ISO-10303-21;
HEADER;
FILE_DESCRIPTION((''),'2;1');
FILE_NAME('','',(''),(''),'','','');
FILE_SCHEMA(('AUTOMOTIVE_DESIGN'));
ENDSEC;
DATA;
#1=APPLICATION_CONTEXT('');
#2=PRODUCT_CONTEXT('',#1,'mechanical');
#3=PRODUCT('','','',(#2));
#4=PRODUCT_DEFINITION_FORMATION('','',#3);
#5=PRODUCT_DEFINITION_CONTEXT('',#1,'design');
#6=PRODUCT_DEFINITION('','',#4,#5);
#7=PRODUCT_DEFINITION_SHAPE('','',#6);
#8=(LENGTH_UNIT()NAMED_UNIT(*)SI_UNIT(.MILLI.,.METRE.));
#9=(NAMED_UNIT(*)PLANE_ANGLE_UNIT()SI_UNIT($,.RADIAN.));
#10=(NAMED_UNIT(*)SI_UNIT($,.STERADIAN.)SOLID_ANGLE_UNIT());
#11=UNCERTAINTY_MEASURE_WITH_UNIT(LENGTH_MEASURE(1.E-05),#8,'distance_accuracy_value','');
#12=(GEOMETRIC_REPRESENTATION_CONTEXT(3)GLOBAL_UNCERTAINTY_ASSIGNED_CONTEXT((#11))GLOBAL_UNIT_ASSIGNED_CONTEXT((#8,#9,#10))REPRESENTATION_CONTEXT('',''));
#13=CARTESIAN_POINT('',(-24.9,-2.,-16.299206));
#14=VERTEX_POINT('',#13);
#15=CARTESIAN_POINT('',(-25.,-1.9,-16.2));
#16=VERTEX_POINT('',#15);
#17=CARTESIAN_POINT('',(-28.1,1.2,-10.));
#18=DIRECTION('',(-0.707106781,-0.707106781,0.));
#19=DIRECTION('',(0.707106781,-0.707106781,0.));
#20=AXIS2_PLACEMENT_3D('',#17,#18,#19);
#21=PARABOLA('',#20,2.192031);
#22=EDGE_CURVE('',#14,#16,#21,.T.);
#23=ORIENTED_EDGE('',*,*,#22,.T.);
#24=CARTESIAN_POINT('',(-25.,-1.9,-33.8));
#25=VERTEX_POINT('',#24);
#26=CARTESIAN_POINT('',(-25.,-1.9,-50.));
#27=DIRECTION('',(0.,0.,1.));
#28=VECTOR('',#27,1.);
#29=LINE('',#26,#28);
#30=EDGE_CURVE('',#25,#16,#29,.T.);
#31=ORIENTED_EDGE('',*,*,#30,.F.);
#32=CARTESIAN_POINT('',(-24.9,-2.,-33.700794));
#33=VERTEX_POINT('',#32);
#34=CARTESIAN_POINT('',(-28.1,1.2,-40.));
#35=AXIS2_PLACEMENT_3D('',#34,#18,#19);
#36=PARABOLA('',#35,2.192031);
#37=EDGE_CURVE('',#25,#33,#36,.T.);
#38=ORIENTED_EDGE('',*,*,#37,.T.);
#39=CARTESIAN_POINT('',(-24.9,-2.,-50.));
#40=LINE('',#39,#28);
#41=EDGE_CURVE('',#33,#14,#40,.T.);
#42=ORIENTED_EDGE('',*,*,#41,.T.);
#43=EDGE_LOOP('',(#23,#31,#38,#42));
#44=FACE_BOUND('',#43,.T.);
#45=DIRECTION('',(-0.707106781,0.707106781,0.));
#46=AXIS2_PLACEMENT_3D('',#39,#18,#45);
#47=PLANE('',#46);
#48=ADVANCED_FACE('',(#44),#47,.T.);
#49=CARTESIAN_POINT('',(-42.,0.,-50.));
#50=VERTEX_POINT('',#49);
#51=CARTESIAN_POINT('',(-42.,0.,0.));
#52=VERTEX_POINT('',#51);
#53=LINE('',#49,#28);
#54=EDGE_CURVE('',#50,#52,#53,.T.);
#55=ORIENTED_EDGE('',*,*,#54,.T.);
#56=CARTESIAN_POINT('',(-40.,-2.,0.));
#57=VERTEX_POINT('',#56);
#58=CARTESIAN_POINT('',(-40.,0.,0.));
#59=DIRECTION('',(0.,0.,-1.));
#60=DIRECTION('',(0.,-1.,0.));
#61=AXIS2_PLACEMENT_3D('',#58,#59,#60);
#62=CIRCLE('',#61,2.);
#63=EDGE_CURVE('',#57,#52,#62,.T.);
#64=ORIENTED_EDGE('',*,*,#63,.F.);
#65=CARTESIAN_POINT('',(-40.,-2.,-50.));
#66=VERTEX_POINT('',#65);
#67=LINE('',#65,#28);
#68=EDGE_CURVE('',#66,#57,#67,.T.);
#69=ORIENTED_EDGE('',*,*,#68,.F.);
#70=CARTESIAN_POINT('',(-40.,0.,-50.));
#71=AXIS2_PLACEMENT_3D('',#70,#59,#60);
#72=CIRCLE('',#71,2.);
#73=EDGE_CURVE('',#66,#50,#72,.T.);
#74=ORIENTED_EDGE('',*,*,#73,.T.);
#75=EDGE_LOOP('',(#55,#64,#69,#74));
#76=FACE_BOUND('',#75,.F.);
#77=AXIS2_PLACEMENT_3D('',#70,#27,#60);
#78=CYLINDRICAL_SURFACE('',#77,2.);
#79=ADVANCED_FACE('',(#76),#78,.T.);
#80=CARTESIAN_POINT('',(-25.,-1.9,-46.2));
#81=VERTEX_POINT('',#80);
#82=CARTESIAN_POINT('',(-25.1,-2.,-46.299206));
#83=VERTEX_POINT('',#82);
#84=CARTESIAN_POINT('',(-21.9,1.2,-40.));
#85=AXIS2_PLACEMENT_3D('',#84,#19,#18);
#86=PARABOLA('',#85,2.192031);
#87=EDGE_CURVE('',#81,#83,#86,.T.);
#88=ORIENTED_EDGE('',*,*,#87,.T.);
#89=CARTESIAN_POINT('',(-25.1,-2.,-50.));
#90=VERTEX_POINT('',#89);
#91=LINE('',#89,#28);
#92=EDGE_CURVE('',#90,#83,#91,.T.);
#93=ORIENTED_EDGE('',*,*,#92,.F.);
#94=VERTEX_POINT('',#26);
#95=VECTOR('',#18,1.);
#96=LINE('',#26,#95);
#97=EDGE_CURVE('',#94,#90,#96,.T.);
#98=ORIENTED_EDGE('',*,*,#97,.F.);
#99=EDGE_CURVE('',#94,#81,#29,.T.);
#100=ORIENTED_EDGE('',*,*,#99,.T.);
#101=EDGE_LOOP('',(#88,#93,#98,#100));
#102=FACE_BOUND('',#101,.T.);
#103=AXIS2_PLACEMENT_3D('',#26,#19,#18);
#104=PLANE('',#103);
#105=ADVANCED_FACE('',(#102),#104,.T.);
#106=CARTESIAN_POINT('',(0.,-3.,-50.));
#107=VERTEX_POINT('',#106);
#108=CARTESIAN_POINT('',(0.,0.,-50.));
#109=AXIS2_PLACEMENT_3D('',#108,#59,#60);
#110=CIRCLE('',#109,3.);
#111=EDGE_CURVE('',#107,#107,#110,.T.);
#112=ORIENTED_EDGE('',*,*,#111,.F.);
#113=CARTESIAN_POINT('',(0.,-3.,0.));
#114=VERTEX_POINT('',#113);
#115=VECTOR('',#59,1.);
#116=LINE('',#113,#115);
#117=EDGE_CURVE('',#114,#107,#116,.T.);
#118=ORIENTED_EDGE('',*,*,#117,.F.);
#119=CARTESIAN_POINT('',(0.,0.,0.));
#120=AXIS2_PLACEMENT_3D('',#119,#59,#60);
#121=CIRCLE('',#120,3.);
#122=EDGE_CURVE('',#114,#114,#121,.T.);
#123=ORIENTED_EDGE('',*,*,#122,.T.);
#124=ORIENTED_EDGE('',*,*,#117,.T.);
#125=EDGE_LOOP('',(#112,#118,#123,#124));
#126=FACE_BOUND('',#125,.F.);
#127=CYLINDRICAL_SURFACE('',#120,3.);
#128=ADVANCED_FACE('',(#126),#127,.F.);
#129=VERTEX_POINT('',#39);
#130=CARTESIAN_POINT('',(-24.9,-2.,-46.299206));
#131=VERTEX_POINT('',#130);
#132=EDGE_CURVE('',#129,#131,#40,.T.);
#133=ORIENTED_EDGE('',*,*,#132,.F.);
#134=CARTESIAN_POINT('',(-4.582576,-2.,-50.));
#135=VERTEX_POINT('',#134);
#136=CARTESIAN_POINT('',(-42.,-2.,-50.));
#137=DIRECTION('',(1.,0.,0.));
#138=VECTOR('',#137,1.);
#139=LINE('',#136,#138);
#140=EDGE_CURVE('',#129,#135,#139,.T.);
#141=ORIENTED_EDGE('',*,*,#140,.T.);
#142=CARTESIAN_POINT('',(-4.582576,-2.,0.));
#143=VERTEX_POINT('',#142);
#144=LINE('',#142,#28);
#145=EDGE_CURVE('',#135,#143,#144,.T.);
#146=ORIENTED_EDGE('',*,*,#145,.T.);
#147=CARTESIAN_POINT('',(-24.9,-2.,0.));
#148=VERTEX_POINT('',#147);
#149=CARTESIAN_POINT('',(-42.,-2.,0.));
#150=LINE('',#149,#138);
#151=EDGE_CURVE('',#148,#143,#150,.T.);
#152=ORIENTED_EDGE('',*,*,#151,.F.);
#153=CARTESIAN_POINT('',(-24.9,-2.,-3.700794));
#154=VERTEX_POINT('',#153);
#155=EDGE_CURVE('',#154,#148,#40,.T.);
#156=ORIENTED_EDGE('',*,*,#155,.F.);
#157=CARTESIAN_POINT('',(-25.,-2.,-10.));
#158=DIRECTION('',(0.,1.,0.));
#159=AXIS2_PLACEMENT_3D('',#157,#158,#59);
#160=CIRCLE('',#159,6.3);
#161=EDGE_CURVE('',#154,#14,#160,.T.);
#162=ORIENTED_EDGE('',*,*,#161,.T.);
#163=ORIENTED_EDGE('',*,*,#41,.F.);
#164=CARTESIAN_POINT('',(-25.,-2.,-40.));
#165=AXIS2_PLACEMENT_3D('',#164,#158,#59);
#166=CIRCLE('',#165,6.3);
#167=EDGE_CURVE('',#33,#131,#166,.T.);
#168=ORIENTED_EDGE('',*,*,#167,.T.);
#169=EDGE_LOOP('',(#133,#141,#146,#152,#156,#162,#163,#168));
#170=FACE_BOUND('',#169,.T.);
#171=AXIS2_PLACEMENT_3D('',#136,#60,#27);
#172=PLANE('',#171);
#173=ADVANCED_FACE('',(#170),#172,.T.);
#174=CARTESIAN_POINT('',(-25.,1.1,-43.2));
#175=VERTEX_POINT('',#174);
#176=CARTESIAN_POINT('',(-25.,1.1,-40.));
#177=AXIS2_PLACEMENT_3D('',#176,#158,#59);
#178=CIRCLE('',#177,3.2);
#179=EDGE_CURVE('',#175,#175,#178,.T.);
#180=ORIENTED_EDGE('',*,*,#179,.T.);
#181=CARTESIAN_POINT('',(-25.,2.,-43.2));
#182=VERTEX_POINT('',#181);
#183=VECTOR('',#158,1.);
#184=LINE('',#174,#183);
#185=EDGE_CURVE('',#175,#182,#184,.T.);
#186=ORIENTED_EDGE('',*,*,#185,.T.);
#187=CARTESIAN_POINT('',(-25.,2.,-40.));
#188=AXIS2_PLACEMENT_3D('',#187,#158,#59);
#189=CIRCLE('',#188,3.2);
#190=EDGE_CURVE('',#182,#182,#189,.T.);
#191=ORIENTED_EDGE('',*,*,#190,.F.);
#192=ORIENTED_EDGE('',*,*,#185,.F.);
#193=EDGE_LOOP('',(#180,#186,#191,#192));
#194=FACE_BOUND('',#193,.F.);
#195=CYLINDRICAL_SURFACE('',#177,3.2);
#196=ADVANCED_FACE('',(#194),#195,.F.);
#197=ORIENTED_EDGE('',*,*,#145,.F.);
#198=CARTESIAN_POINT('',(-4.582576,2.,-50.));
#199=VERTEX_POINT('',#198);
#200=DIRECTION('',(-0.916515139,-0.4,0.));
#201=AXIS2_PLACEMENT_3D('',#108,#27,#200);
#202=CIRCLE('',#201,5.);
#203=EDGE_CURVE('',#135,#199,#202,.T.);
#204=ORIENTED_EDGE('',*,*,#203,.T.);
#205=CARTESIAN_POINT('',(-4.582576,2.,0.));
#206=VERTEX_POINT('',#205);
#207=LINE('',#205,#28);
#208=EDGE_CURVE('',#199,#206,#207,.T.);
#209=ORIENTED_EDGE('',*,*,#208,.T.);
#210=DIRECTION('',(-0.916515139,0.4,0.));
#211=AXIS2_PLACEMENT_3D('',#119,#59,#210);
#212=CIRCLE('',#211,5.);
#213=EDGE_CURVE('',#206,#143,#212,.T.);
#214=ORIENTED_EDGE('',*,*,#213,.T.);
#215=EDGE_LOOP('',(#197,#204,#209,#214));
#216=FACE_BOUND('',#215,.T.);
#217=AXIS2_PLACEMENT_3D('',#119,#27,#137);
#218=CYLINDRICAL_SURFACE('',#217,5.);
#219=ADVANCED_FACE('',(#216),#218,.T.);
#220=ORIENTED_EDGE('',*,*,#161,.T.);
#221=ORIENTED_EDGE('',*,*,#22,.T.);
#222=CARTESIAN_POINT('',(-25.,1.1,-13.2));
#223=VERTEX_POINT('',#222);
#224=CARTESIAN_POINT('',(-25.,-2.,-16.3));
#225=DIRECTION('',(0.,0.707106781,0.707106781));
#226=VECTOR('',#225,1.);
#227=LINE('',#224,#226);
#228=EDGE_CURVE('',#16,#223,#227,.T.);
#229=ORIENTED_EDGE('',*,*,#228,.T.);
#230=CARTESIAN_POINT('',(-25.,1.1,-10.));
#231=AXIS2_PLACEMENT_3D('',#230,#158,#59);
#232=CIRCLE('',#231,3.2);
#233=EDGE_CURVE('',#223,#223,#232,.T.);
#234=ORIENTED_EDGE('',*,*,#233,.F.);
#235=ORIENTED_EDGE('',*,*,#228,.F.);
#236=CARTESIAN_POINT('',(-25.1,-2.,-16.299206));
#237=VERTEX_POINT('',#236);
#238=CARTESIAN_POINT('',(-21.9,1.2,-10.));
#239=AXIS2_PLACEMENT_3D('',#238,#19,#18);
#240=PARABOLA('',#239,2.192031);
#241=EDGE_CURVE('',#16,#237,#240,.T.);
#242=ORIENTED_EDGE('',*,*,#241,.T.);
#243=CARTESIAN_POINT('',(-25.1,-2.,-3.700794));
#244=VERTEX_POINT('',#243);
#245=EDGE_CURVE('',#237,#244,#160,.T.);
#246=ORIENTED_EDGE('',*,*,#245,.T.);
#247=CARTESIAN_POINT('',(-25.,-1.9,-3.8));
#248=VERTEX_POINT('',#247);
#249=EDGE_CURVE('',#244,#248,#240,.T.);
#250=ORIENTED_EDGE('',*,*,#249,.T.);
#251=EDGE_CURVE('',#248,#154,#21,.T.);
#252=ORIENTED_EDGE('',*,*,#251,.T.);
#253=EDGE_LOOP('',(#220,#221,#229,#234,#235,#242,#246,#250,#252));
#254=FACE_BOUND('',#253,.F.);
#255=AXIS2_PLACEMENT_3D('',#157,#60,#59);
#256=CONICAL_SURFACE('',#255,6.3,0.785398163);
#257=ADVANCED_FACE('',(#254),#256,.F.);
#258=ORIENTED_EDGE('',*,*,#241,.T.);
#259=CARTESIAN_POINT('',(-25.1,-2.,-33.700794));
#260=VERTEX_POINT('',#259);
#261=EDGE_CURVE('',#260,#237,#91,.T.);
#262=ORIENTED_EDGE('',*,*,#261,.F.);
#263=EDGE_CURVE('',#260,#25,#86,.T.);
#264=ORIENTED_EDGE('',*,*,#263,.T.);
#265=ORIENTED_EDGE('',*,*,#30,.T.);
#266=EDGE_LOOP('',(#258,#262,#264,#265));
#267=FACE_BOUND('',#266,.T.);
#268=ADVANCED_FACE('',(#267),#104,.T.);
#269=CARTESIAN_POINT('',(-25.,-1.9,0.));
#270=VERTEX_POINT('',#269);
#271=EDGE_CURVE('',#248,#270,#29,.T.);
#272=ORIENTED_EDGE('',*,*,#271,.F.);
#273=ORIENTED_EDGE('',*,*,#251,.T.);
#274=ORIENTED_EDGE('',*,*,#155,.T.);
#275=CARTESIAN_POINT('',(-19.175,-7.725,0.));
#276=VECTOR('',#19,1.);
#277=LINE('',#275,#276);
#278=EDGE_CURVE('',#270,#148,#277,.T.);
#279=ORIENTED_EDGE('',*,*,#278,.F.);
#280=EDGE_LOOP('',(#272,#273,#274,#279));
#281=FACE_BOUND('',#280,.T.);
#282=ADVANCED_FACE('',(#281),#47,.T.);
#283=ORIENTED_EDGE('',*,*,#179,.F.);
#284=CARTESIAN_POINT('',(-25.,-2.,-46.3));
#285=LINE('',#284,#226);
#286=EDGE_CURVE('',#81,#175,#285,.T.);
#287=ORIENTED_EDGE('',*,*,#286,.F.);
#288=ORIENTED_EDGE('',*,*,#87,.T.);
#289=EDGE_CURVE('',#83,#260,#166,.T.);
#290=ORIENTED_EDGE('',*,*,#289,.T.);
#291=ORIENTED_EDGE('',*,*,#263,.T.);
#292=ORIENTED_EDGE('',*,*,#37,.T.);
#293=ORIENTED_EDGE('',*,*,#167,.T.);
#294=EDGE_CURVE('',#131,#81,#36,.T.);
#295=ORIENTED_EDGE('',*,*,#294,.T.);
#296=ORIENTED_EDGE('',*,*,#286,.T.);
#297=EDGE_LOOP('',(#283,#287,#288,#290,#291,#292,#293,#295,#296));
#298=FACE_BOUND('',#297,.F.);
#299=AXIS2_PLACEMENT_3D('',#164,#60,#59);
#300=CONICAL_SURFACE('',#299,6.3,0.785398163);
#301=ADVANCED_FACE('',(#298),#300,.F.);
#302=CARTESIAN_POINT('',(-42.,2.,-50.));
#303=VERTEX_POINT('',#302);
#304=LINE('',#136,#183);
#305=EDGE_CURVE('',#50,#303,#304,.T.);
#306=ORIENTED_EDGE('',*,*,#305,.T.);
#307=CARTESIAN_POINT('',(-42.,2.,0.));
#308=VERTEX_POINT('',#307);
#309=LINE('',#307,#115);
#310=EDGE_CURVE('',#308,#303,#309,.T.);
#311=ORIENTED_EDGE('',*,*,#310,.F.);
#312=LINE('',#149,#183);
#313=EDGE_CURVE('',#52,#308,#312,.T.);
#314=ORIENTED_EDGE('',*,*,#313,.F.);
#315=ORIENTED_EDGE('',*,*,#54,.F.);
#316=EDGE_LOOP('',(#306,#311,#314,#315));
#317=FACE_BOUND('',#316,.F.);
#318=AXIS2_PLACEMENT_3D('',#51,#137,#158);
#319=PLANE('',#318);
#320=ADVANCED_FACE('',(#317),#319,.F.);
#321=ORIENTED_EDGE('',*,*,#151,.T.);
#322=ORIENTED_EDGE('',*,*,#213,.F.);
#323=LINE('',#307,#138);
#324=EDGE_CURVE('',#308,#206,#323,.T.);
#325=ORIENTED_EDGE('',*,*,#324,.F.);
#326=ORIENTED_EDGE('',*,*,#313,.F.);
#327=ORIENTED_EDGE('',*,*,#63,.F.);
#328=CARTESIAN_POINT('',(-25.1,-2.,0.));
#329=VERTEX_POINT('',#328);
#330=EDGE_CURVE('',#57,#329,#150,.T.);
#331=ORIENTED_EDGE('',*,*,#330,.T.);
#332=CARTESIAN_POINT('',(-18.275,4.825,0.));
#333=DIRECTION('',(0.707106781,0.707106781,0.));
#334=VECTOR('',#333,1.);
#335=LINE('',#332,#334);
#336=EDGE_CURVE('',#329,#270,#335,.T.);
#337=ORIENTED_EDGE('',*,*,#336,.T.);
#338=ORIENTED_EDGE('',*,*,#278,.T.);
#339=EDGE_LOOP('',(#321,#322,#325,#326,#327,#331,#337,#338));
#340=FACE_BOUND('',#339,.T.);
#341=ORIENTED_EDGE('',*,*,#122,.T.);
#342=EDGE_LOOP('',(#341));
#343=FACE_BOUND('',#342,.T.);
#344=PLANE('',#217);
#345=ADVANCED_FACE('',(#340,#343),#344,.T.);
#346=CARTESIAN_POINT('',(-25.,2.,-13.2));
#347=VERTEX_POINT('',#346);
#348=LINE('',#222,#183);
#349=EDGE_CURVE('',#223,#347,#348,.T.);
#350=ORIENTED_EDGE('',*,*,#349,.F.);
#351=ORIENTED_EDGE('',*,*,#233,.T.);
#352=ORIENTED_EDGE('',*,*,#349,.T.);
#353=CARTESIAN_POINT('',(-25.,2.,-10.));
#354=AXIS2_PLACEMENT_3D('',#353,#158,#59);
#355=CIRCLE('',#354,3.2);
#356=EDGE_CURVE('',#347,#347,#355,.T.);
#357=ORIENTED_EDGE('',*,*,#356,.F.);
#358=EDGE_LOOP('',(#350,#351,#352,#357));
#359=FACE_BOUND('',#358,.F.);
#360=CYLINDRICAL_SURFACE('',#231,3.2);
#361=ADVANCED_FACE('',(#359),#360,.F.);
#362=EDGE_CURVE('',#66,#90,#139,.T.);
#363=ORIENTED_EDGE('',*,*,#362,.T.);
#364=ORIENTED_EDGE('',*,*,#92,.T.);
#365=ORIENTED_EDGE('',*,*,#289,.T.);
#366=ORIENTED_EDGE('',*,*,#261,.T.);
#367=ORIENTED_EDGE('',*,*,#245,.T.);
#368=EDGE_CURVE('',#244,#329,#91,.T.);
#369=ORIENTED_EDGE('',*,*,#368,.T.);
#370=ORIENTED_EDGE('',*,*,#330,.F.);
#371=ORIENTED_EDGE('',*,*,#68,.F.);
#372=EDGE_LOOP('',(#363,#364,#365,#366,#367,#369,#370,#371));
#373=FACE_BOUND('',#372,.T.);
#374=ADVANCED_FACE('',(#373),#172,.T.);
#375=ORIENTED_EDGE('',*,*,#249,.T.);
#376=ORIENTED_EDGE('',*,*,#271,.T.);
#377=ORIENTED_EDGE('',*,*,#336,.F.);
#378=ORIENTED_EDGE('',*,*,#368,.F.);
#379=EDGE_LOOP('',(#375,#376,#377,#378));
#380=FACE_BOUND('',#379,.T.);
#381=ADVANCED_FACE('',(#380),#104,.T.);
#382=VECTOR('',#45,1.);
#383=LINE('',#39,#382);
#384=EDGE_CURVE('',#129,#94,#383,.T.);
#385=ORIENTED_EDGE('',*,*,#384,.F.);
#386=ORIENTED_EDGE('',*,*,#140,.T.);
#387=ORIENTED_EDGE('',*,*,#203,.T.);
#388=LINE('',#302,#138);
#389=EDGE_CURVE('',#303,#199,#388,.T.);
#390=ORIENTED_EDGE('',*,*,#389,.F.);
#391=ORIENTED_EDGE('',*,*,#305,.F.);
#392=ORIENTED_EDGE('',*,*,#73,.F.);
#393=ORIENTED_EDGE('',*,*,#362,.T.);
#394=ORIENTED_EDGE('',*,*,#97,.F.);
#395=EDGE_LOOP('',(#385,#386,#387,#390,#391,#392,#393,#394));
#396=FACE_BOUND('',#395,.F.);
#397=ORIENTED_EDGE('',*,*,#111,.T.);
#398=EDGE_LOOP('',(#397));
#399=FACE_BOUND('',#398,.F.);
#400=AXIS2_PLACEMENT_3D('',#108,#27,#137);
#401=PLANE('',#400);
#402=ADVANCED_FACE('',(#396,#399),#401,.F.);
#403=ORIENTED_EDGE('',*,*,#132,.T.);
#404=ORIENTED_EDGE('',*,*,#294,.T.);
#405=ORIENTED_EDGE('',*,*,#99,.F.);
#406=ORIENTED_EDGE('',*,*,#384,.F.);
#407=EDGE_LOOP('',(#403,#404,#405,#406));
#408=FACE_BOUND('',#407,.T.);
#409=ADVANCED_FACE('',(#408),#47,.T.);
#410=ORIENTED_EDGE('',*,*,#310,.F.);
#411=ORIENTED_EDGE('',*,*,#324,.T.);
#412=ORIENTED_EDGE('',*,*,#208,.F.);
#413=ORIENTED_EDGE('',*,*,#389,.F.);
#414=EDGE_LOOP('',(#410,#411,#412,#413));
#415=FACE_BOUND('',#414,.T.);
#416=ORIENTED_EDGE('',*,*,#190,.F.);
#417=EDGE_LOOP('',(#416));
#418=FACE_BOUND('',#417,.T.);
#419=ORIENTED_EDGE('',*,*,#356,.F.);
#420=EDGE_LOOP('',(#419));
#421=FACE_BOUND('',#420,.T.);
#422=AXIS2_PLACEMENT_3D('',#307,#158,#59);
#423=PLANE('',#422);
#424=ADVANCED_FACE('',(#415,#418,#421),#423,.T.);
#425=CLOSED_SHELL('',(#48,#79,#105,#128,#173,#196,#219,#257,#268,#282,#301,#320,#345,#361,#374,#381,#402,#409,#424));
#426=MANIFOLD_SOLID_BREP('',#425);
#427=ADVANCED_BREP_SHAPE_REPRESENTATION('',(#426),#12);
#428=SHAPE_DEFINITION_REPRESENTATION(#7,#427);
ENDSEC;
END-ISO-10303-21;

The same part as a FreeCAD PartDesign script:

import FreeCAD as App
import Part
import Sketcher


def edges_at(feature, points):
    """Names of the edges that pass closest to the given points."""
    edges = feature.Shape.Edges
    near = lambda p: min(range(len(edges)), key=lambda i: edges[i].distToShape(Part.Vertex(*p))[0])
    return sorted({f"Edge{near(p) + 1}" for p in points})


def add_polygon(sketch, points):
    """Adds a closed chain of lines whose ends are joined by coincident constraints."""
    first, n = sketch.GeometryCount, len(points)
    for a, b in zip(points, points[1:] + points[:1]):
        sketch.addGeometry(Part.LineSegment(App.Vector(*a, 0), App.Vector(*b, 0)), False)
    for i in range(n):
        sketch.addConstraint(Sketcher.Constraint("Coincident", first + i, 2, first + (i + 1) % n, 1))

doc = App.newDocument("Part")
body = doc.addObject("PartDesign::Body", "Body")

# Sketch on XY plane
sketch1 = body.newObject("Sketcher::SketchObject", "Sketch")
sketch1.AttachmentSupport = (doc.getObject("XY_Plane"), [""])
sketch1.MapMode = "FlatFace"
sketch1.addGeometry(Part.Circle(App.Vector(0, 0, 0), App.Vector(0, 0, 1), 5), False)
sketch1.addConstraint([
    Sketcher.Constraint("Coincident", 0, 3, -1, 1),
    Sketcher.Constraint("Diameter", 0, 10.0),
])
pad1 = body.newObject("PartDesign::Pad", "Pad")
pad1.Profile = sketch1
pad1.Length = 50
pad1.Reversed = True

# Sketch on YZ plane
sketch2 = body.newObject("Sketcher::SketchObject", "Sketch001")
sketch2.AttachmentSupport = (doc.getObject("YZ_Plane"), [""])
sketch2.MapMode = "FlatFace"
sketch2.AttachmentOffset = App.Placement(App.Vector(0, 0, -42), App.Rotation())
add_polygon(sketch2, [(2, -50), (2, 0), (-2, 0), (-2, -50)])  # lines 0-3
sketch2.addConstraint([
    Sketcher.Constraint("Vertical", 0),
    Sketcher.Constraint("Horizontal", 1),
    Sketcher.Constraint("Vertical", 2),
    Sketcher.Constraint("Horizontal", 3),
    Sketcher.Constraint("Symmetric", 0, 2, 1, 2, -1, 1),
    Sketcher.Constraint("DistanceX", 1, 2, 1, 1, 4.0),
    Sketcher.Constraint("DistanceY", 0, 1, 0, 2, 50.0),
])
pad2 = body.newObject("PartDesign::Pad", "Pad001")
pad2.Profile = sketch2
pad2.Length = 42

# Sketch on XY plane
sketch3 = body.newObject("Sketcher::SketchObject", "Sketch002")
sketch3.AttachmentSupport = (doc.getObject("XY_Plane"), [""])
sketch3.MapMode = "FlatFace"
sketch3.addGeometry(Part.Circle(App.Vector(0, 0, 0), App.Vector(0, 0, 1), 3), False)
sketch3.addConstraint([
    Sketcher.Constraint("Coincident", 0, 3, -1, 1),
    Sketcher.Constraint("Diameter", 0, 6.0),
])
doc.recompute()
hole = body.newObject("PartDesign::Hole", "Hole")
hole.Profile = sketch3
hole.ThreadType = "None"
hole.Diameter = 6
hole.DepthType = "ThroughAll"

# Sketch on XZ plane
sketch4 = body.newObject("Sketcher::SketchObject", "Sketch003")
sketch4.AttachmentSupport = (doc.getObject("XZ_Plane"), [""])
sketch4.MapMode = "FlatFace"
sketch4.AttachmentOffset = App.Placement(App.Vector(0, 0, 2), App.Rotation())
sketch4.addGeometry([
    Part.Circle(App.Vector(-25, -10, 0), App.Vector(0, 0, 1), 3.2),
    Part.Circle(App.Vector(-25, -40, 0), App.Vector(0, 0, 1), 3.2),
], False)
sketch4.addConstraint([
    Sketcher.Constraint("Equal", 0, 1),
    Sketcher.Constraint("Vertical", 0, 3, 1, 3),
    Sketcher.Constraint("Diameter", 0, 6.4),
    Sketcher.Constraint("DistanceX", 0, 3, -1, 1, 25.0),
    Sketcher.Constraint("DistanceY", 0, 3, -1, 1, 10.0),
    Sketcher.Constraint("DistanceY", 1, 3, -1, 1, 40.0),
])
doc.recompute()
hole2 = body.newObject("PartDesign::Hole", "Hole001")
hole2.Profile = sketch4
hole2.ThreadType = "None"
hole2.Diameter = 6.4
hole2.DepthType = "ThroughAll"
hole2.HoleCutType = "Countersink"
hole2.HoleCutDiameter = 12.6
hole2.HoleCutCountersinkAngle = 90

# Sketch on XY plane
sketch5 = body.newObject("Sketcher::SketchObject", "Sketch004")
sketch5.AttachmentSupport = (doc.getObject("XY_Plane"), [""])
sketch5.MapMode = "FlatFace"
sketch5.AttachmentOffset = App.Placement(App.Vector(0, 0, -50), App.Rotation())
add_polygon(sketch5, [(-25.1, -2), (-25, -1.9), (-24.9, -2)])  # lines 0-2
sketch5.addConstraint([
    Sketcher.Constraint("Horizontal", 2),
    Sketcher.Constraint("Perpendicular", 0, 1),
    Sketcher.Constraint("Equal", 0, 1),
    Sketcher.Constraint("DistanceX", 0, 2, 1, 2, 0.1),
    Sketcher.Constraint("DistanceX", 0, 2, -1, 1, 25.0),
    Sketcher.Constraint("DistanceY", 1, 2, -1, 1, 2.0),
])
pocket1 = body.newObject("PartDesign::Pocket", "Pocket")
pocket1.Profile = sketch5
pocket1.Type = "ThroughAll"
pocket1.Reversed = True
doc.recompute()

fillet = body.newObject("PartDesign::Fillet", "Fillet")
fillet.Base = (pocket1, edges_at(pocket1, [(-42, -2, -25)]))
fillet.Radius = 2

doc.recompute()
